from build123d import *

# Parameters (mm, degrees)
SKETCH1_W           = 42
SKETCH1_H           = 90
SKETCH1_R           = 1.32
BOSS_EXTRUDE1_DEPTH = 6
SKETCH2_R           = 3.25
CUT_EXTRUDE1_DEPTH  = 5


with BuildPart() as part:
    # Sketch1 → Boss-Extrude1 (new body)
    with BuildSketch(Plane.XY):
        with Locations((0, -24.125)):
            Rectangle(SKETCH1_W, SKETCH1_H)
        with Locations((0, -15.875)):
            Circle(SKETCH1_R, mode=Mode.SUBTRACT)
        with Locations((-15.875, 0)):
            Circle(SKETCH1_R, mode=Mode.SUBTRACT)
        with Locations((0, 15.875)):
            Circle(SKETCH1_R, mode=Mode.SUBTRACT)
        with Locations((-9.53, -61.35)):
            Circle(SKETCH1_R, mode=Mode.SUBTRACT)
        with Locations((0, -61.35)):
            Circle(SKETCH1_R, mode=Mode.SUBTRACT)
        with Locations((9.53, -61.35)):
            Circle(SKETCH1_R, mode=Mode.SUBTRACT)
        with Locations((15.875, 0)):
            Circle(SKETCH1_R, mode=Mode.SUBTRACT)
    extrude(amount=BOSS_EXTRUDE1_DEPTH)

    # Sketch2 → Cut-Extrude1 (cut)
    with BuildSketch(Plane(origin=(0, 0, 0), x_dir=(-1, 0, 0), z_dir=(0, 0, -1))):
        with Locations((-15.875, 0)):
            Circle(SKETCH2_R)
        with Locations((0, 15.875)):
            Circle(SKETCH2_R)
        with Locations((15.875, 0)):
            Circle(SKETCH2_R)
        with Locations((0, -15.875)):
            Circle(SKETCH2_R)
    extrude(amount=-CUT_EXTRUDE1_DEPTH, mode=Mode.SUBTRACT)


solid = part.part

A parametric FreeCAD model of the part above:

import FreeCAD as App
import Part
import Sketcher
from FreeCAD import Vector

doc = App.newDocument("Part")
body = doc.addObject("PartDesign::Body", "Body")

# Sketch on XY plane
sketch1 = body.newObject("Sketcher::SketchObject", "Sketch")
sketch1.AttachmentSupport = (doc.getObject("XY_Plane"), [""])
sketch1.MapMode = "FlatFace"
sketch1.addGeometry([
    Part.LineSegment(Vector(-21, 20.9, 0), Vector(-21, -69.1, 0)),  # 0
    Part.LineSegment(Vector(-21, -69.1, 0), Vector(21, -69.1, 0)),  # 1
    Part.LineSegment(Vector(21, -69.1, 0), Vector(21, 20.9, 0)),  # 2
    Part.LineSegment(Vector(21, 20.9, 0), Vector(-21, 20.9, 0)),  # 3
    Part.Circle(Vector(-9.5, -61.4, 0), Vector(0, 0, 1), 1.3),  # 4
    Part.Circle(Vector(0, -61.4, 0), Vector(0, 0, 1), 1.3),  # 5
    Part.Circle(Vector(9.5, -61.4, 0), Vector(0, 0, 1), 1.3),  # 6
    Part.Circle(Vector(-15.9, 0, 0), Vector(0, 0, 1), 1.3),  # 7
    Part.Circle(Vector(0, -15.9, 0), Vector(0, 0, 1), 1.3),  # 8
    Part.Circle(Vector(0, 15.9, 0), Vector(0, 0, 1), 1.3),  # 9
    Part.Circle(Vector(15.9, 0, 0), Vector(0, 0, 1), 1.3),  # 10
], False)
sketch1.addConstraint([
    Sketcher.Constraint("Coincident", 0, 2, 1, 1),
    Sketcher.Constraint("Coincident", 1, 2, 2, 1),
    Sketcher.Constraint("Coincident", 2, 2, 3, 1),
    Sketcher.Constraint("Coincident", 3, 2, 0, 1),
    Sketcher.Constraint("Vertical", 0),
    Sketcher.Constraint("Horizontal", 1),
    Sketcher.Constraint("Vertical", 2),
    Sketcher.Constraint("Horizontal", 3),
    Sketcher.Constraint("Equal", 4, 5),
    Sketcher.Constraint("Equal", 5, 6),
    Sketcher.Constraint("Equal", 6, 7),
    Sketcher.Constraint("Equal", 7, 8),
    Sketcher.Constraint("Equal", 8, 9),
    Sketcher.Constraint("Equal", 9, 10),
    Sketcher.Constraint("Symmetric", 8, 3, 9, 3, -1, 1),
    Sketcher.Constraint("Symmetric", 7, 3, 10, 3, -1, 1),
    Sketcher.Constraint("Symmetric", 4, 3, 6, 3, -2),
    Sketcher.Constraint("PointOnObject", 5, 3, -2),
    Sketcher.Constraint("PointOnObject", 7, 3, -1),
    Sketcher.Constraint("PointOnObject", 8, 3, -2),
    Sketcher.Constraint("Horizontal", 4, 3, 5, 3),
    Sketcher.Constraint("Diameter", 4, 2.64),
    Sketcher.Constraint("DistanceX", 1, 1, 1, 2, 42.0),
    Sketcher.Constraint("DistanceY", 0, 2, 0, 1, 90.0),
    Sketcher.Constraint("DistanceX", 0, 2, -1, 1, 21.0),
    Sketcher.Constraint("DistanceY", 9, 3, 2, 2, 5.0),
    Sketcher.Constraint("DistanceX", 4, 3, -1, 1, 9.53),
    Sketcher.Constraint("DistanceY", 4, 3, -1, 1, 61.35),
    Sketcher.Constraint("DistanceY", 8, 3, 9, 3, 31.75),
    Sketcher.Constraint("DistanceX", 7, 3, 10, 3, 31.75),
])
pad1 = body.newObject("PartDesign::Pad", "Pad")
pad1.Profile = sketch1
pad1.Length = 6

# Sketch on XY plane
sketch2 = body.newObject("Sketcher::SketchObject", "Sketch001")
sketch2.AttachmentSupport = (doc.getObject("XY_Plane"), [""])
sketch2.MapMode = "FlatFace"
sketch2.addGeometry([
    Part.Circle(Vector(15.9, 0, 0), Vector(0, 0, 1), 3.2),
    Part.Circle(Vector(0, 15.9, 0), Vector(0, 0, 1), 3.2),
    Part.Circle(Vector(-15.9, 0, 0), Vector(0, 0, 1), 3.2),
    Part.Circle(Vector(0, -15.9, 0), Vector(0, 0, 1), 3.2),
], False)
sketch2.addConstraint([
    Sketcher.Constraint("Equal", 0, 1),
    Sketcher.Constraint("Equal", 1, 2),
    Sketcher.Constraint("Equal", 2, 3),
    Sketcher.Constraint("Symmetric", 0, 3, 2, 3, -1, 1),
    Sketcher.Constraint("Symmetric", 1, 3, 3, 3, -1, 1),
    Sketcher.Constraint("PointOnObject", 0, 3, -1),
    Sketcher.Constraint("PointOnObject", 1, 3, -2),
    Sketcher.Constraint("Diameter", 0, 6.5),
    Sketcher.Constraint("DistanceX", 2, 3, 0, 3, 31.75),
    Sketcher.Constraint("DistanceY", 3, 3, 1, 3, 31.75),
])
pocket1 = body.newObject("PartDesign::Pocket", "Pocket")
pocket1.Profile = sketch2
pocket1.Length = 5
pocket1.Reversed = True

doc.recompute()
